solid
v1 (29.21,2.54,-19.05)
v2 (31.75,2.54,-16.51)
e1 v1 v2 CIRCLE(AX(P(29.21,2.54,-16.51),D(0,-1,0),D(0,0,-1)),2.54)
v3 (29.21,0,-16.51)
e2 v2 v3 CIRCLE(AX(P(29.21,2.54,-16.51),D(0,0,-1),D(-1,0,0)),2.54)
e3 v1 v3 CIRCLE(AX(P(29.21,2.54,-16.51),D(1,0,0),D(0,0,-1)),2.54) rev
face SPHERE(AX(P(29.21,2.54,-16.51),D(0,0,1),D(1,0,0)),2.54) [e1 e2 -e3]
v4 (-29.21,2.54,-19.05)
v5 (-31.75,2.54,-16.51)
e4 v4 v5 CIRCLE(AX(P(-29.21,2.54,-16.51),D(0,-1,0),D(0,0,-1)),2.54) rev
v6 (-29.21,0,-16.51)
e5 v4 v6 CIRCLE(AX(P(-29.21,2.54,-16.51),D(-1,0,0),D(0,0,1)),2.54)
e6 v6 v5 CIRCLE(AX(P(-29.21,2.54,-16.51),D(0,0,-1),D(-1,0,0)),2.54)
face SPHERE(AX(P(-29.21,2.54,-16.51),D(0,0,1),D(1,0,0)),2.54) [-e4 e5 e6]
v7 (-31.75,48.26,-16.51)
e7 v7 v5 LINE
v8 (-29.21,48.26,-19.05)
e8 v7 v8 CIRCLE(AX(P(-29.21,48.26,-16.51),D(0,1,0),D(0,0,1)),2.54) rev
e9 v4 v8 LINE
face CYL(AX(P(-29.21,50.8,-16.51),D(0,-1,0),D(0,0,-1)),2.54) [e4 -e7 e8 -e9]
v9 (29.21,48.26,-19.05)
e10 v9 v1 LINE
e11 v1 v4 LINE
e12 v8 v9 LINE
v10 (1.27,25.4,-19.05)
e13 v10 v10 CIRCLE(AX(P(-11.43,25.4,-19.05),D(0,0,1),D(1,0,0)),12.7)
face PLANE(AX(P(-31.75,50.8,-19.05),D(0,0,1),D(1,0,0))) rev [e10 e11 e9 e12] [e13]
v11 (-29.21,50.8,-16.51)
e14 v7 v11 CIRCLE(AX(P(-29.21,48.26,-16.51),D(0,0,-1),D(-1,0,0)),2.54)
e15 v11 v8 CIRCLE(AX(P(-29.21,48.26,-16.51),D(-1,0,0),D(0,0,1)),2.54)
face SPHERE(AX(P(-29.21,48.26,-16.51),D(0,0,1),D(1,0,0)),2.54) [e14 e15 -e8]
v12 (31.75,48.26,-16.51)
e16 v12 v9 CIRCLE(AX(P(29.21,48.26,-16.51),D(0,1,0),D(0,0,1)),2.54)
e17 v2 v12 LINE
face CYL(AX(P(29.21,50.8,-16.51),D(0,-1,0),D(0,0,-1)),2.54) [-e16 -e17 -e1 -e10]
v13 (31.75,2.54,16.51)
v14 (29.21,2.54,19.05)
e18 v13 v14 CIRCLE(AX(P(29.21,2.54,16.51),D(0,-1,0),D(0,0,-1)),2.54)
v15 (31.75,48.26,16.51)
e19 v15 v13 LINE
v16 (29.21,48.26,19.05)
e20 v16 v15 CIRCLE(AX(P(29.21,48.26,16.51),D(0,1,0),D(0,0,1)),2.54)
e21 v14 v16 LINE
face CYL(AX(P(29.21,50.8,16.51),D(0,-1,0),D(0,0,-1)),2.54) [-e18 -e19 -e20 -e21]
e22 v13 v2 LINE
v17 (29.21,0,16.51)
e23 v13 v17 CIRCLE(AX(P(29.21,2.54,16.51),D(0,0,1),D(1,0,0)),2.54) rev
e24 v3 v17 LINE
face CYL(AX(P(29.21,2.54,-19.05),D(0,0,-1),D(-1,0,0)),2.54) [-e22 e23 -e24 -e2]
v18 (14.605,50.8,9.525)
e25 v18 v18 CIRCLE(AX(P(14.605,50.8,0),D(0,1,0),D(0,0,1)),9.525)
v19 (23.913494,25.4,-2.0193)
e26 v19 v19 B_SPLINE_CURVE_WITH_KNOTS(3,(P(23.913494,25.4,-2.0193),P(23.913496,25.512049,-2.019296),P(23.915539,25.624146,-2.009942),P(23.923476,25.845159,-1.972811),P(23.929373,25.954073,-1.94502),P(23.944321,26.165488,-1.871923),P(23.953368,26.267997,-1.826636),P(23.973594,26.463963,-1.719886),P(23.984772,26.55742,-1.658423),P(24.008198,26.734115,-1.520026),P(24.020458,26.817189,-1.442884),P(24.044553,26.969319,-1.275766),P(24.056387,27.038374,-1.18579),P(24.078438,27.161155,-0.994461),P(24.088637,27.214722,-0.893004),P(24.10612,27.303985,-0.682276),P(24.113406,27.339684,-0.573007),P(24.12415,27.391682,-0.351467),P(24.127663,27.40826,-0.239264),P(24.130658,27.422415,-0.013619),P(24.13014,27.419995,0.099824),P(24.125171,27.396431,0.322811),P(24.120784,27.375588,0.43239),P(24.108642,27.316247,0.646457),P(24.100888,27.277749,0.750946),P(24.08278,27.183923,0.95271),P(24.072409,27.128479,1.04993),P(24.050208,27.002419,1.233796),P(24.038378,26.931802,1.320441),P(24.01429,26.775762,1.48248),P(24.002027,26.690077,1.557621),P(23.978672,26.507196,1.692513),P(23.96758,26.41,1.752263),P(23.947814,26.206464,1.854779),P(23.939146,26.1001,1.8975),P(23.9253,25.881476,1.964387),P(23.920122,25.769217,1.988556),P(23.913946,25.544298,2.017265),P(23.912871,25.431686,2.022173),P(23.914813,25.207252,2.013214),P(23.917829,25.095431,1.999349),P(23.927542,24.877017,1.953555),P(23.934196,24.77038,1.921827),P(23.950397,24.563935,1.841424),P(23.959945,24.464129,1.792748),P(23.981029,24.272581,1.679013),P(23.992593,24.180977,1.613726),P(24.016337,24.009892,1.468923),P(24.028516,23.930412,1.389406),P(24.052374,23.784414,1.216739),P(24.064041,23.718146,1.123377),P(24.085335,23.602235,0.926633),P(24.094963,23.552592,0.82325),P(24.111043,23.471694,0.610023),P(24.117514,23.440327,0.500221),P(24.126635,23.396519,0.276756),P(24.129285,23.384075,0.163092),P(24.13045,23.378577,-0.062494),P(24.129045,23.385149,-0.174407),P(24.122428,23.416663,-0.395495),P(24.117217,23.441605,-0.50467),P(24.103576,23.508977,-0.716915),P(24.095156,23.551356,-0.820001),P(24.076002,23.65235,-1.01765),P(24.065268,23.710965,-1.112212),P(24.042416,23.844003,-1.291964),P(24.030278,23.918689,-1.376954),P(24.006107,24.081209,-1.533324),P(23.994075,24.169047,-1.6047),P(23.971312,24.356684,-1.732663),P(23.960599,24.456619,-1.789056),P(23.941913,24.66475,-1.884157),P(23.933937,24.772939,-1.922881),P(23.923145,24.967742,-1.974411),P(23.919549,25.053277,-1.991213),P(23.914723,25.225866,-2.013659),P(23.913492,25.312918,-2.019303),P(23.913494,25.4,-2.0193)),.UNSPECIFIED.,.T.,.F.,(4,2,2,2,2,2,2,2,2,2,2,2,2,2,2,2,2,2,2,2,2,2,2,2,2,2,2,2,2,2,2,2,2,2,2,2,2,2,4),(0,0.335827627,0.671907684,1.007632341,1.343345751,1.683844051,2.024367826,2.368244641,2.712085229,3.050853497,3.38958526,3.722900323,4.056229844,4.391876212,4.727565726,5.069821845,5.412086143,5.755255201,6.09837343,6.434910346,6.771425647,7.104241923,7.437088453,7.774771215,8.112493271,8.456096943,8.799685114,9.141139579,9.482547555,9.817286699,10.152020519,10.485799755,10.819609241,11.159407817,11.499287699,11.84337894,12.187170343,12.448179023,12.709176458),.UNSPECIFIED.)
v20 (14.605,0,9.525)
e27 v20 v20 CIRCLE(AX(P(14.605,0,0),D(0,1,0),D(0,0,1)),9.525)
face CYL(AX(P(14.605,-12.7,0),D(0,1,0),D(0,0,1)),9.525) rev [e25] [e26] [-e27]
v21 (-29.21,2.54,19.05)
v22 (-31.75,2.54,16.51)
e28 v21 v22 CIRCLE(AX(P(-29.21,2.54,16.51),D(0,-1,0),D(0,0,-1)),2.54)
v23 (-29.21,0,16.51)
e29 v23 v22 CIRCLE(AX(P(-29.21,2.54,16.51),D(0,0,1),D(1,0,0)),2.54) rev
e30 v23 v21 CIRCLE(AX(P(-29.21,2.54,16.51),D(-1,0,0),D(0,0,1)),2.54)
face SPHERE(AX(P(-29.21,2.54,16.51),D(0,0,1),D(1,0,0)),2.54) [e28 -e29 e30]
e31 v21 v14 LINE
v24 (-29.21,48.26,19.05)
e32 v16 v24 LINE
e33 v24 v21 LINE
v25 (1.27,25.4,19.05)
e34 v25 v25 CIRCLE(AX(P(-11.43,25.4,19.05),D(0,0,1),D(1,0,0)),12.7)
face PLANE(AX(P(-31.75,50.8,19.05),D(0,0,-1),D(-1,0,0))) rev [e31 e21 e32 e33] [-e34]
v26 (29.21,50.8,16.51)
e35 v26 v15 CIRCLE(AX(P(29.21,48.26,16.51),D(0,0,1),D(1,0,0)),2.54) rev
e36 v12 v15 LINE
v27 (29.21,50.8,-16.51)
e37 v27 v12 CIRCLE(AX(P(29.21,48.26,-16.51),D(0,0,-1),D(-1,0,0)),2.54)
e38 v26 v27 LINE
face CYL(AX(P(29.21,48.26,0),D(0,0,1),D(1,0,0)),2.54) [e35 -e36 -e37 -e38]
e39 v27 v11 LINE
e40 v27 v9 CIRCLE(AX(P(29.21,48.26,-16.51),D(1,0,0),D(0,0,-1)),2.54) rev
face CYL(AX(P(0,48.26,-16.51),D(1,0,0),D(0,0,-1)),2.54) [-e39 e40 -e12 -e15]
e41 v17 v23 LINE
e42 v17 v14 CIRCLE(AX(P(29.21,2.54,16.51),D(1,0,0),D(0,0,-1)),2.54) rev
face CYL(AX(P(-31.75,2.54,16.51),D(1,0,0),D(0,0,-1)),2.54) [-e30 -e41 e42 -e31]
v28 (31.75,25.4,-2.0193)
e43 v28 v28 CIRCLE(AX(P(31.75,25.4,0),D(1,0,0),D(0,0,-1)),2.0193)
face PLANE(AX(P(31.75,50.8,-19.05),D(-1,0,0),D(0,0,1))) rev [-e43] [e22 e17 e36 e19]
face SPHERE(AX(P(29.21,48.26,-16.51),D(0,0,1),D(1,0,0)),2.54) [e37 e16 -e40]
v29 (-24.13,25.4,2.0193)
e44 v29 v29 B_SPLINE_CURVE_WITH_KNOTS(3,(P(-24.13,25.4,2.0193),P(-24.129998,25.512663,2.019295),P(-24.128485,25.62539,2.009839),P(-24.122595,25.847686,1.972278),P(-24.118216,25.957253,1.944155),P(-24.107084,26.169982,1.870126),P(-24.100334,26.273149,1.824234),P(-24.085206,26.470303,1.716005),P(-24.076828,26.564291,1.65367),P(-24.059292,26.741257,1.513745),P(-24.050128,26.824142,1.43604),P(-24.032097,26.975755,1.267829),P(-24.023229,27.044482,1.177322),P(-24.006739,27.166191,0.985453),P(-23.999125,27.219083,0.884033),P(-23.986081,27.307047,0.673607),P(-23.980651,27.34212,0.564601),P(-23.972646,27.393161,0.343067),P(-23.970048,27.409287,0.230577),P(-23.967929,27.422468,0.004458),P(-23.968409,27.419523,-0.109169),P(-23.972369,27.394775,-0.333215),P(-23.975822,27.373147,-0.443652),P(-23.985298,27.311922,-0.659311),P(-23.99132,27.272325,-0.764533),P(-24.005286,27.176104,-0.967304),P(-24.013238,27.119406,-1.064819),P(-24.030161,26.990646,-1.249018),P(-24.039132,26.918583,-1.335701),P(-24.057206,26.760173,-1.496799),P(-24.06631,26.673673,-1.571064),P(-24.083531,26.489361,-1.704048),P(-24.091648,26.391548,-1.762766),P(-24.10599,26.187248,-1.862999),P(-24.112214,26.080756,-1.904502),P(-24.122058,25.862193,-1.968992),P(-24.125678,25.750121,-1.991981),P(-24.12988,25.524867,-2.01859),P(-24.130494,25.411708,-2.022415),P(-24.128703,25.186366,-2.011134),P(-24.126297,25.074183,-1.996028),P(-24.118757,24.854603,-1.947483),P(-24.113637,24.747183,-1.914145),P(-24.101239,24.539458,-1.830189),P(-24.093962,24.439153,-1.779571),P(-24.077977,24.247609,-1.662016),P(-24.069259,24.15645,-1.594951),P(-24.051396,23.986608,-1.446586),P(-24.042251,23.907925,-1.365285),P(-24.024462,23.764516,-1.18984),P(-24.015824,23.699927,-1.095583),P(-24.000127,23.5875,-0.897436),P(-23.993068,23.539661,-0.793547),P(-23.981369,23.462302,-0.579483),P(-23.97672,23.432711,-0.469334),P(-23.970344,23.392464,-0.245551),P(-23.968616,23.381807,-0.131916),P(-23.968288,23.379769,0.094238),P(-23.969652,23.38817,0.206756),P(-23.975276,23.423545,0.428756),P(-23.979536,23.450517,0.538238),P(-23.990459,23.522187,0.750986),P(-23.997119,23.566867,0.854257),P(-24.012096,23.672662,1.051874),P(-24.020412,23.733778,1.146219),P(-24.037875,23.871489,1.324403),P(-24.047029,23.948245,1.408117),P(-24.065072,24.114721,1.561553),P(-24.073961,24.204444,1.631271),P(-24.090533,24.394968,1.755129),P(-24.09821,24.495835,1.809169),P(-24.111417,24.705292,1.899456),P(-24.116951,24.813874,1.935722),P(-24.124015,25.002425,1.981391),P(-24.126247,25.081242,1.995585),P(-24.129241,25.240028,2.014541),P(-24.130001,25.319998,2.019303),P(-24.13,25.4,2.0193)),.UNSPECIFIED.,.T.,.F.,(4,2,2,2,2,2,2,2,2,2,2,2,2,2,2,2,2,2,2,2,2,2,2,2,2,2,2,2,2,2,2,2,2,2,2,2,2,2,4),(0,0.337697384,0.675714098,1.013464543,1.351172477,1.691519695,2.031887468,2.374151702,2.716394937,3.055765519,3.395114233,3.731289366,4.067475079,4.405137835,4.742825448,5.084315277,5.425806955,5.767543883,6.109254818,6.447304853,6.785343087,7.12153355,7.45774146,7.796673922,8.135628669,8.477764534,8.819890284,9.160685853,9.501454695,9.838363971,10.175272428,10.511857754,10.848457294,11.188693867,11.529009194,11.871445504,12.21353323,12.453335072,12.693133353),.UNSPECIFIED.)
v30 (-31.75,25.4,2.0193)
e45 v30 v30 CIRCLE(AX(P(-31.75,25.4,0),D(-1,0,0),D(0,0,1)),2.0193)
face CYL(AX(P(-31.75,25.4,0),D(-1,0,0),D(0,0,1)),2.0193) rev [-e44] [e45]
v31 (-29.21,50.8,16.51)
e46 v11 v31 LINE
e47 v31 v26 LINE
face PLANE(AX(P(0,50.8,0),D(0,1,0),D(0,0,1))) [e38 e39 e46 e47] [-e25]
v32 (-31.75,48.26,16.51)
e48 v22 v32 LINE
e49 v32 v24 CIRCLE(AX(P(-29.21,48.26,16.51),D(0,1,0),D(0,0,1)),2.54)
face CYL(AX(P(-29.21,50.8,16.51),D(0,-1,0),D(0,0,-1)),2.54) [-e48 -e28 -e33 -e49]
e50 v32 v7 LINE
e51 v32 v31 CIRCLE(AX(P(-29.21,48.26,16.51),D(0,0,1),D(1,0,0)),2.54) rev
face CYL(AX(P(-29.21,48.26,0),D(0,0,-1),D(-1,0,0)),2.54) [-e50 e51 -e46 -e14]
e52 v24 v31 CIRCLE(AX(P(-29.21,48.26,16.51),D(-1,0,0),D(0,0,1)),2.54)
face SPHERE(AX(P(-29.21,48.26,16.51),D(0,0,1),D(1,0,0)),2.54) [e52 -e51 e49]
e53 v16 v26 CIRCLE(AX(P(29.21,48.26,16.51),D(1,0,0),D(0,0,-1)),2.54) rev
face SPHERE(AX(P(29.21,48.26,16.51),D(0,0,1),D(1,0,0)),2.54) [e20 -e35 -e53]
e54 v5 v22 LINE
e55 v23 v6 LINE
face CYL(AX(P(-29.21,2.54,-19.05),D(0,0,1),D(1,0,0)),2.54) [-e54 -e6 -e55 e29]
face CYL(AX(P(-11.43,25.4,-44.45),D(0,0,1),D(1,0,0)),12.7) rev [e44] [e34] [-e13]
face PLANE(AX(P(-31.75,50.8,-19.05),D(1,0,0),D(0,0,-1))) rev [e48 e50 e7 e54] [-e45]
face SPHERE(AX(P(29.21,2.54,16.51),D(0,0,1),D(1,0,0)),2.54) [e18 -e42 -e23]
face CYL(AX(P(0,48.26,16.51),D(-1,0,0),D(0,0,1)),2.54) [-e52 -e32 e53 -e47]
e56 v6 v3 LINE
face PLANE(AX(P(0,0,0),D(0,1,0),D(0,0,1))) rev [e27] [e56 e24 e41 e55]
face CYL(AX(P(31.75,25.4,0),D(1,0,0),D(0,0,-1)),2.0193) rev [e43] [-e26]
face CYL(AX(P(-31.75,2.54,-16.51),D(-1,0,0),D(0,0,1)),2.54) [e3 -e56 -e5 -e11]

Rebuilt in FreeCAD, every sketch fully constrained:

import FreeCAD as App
import Part
import Sketcher
Q = App.Units.Quantity


def edges_at(feature, points):
    """Names of the edges that pass closest to the given points."""
    edges = feature.Shape.Edges
    near = lambda p: min(range(len(edges)), key=lambda i: edges[i].distToShape(Part.Vertex(*p))[0])
    return sorted({f"Edge{near(p) + 1}" for p in points})

doc = App.newDocument("Part")
body = doc.addObject("PartDesign::Body", "Body")

# Sketch on XZ plane
sketch1 = body.newObject("Sketcher::SketchObject", "Sketch")
sketch1.AttachmentSupport = (doc.getObject("XZ_Plane"), [""])
sketch1.MapMode = "FlatFace"
sketch1.addGeometry(Part.LineSegment(App.Vector(-32, -19, 0), App.Vector(-32, 19, 0)), False)
sketch1.addGeometry(Part.LineSegment(App.Vector(-32, 19, 0), App.Vector(32, 19, 0)), False)
sketch1.addGeometry(Part.LineSegment(App.Vector(32, 19, 0), App.Vector(32, -19, 0)), False)
sketch1.addGeometry(Part.LineSegment(App.Vector(32, -19, 0), App.Vector(-32, -19, 0)), False)
sketch1.addConstraint(Sketcher.Constraint("Coincident", 0, 2, 1, 1))
sketch1.addConstraint(Sketcher.Constraint("Coincident", 1, 2, 2, 1))
sketch1.addConstraint(Sketcher.Constraint("Coincident", 2, 2, 3, 1))
sketch1.addConstraint(Sketcher.Constraint("Coincident", 3, 2, 0, 1))
sketch1.addConstraint(Sketcher.Constraint("Vertical", 0))
sketch1.addConstraint(Sketcher.Constraint("Horizontal", 1))
sketch1.addConstraint(Sketcher.Constraint("Vertical", 2))
sketch1.addConstraint(Sketcher.Constraint("Horizontal", 3))
sketch1.addConstraint(Sketcher.Constraint("Symmetric", 0, 2, 2, 2, -1, 1))
sketch1.addConstraint(Sketcher.Constraint("DistanceX", 1, 1, 1, 2, Q("2.5 in")))
sketch1.addConstraint(Sketcher.Constraint("DistanceY", 0, 1, 0, 2, Q("1.5 in")))
pad1 = body.newObject("PartDesign::Pad", "Pad")
pad1.Profile = sketch1
pad1.Length = Q("2 in")
pad1.Reversed = True

# Sketch on XY plane
sketch2 = body.newObject("Sketcher::SketchObject", "Sketch001")
sketch2.AttachmentSupport = (doc.getObject("XY_Plane"), [""])
sketch2.MapMode = "FlatFace"
sketch2.AttachmentOffset = App.Placement(App.Vector(0, 0, 0.75 * 25.4), App.Rotation())
sketch2.addGeometry(Part.Circle(App.Vector(-11, 25, 0), App.Vector(0, 0, 1), 13), False)
sketch2.addConstraint(Sketcher.Constraint("Diameter", 0, Q("1 in")))
sketch2.addConstraint(Sketcher.Constraint("DistanceY", -1, 1, 0, 3, Q("1 in")))
sketch2.addConstraint(Sketcher.Constraint("DistanceX", 0, 3, -1, 1, Q("0.45 in")))
pocket1 = body.newObject("PartDesign::Pocket", "Pocket")
pocket1.Profile = sketch2
pocket1.Length = Q("2.5 in")

# Sketch on XZ plane
sketch3 = body.newObject("Sketcher::SketchObject", "Sketch002")
sketch3.AttachmentSupport = (doc.getObject("XZ_Plane"), [""])
sketch3.MapMode = "FlatFace"
sketch3.AttachmentOffset = App.Placement(App.Vector(0, 0, -2 * 25.4), App.Rotation())
sketch3.addGeometry(Part.Circle(App.Vector(15, 0, 0), App.Vector(0, 0, 1), 10), False)
sketch3.addConstraint(Sketcher.Constraint("PointOnObject", 0, 3, -1))
sketch3.addConstraint(Sketcher.Constraint("Diameter", 0, Q("0.75 in")))
sketch3.addConstraint(Sketcher.Constraint("DistanceX", -1, 1, 0, 3, Q("0.575 in")))
pocket2 = body.newObject("PartDesign::Pocket", "Pocket001")
pocket2.Profile = sketch3
pocket2.Length = Q("2.5 in")
pocket2.Reversed = True
doc.recompute()

fillet = body.newObject("PartDesign::Fillet", "Fillet")
fillet.Base = (pocket2, edges_at(pocket2, [
    (-31.75, 50.8, 0),
    (0, 50.8, 19.05),
    (31.75, 50.8, 0),
    (0, 0, 19.05),
    (-31.75, 0, 0),
    (0, 0, -19.05),
    (31.75, 0, 0),
    (0, 50.8, -19.05),
    (31.75, 25.4, 19.05),
    (-31.75, 25.4, 19.05),
    (-31.75, 25.4, -19.05),
    (31.75, 25.4, -19.05),
]))
fillet.Radius = Q("0.1 in")

# Sketch on YZ plane
sketch4 = body.newObject("Sketcher::SketchObject", "Sketch003")
sketch4.AttachmentSupport = (doc.getObject("YZ_Plane"), [""])
sketch4.MapMode = "FlatFace"
sketch4.AttachmentOffset = App.Placement(App.Vector(0, 0, 1.25 * 25.4), App.Rotation())
sketch4.addGeometry(Part.Circle(App.Vector(25.4, 0, 0), App.Vector(0, 0, 1), 2), False)
sketch4.addConstraint(Sketcher.Constraint("PointOnObject", 0, 3, -1))
sketch4.addConstraint(Sketcher.Constraint("Diameter", 0, Q("0.159 in")))
sketch4.addConstraint(Sketcher.Constraint("DistanceX", -1, 1, 0, 3, Q("1 in")))
doc.recompute()
hole = body.newObject("PartDesign::Hole", "Hole")
hole.Profile = sketch4
hole.ThreadType = "None"
hole.Diameter = Q("0.159 in")
hole.DepthType = "Dimension"
hole.Depth = Q("0.536 in")
hole.DrillPoint = "Angled"
hole.DrillPointAngle = 118

# Sketch on YZ plane
sketch5 = body.newObject("Sketcher::SketchObject", "Sketch004")
sketch5.AttachmentSupport = (doc.getObject("YZ_Plane"), [""])
sketch5.MapMode = "FlatFace"
sketch5.AttachmentOffset = App.Placement(App.Vector(0, 0, -1.25 * 25.4), App.Rotation())
sketch5.addGeometry(Part.Circle(App.Vector(25.4, 0, 0), App.Vector(0, 0, 1), 2), False)
sketch5.addConstraint(Sketcher.Constraint("PointOnObject", 0, 3, -1))
sketch5.addConstraint(Sketcher.Constraint("Diameter", 0, Q("0.159 in")))
sketch5.addConstraint(Sketcher.Constraint("DistanceX", -1, 1, 0, 3, Q("1 in")))
doc.recompute()
hole2 = body.newObject("PartDesign::Hole", "Hole001")
hole2.Profile = sketch5
hole2.ThreadType = "None"
hole2.Diameter = Q("0.159 in")
hole2.DepthType = "Dimension"
hole2.Depth = Q("0.536 in")
hole2.DrillPoint = "Angled"
hole2.DrillPointAngle = 118
hole2.Reversed = True

doc.recompute()
